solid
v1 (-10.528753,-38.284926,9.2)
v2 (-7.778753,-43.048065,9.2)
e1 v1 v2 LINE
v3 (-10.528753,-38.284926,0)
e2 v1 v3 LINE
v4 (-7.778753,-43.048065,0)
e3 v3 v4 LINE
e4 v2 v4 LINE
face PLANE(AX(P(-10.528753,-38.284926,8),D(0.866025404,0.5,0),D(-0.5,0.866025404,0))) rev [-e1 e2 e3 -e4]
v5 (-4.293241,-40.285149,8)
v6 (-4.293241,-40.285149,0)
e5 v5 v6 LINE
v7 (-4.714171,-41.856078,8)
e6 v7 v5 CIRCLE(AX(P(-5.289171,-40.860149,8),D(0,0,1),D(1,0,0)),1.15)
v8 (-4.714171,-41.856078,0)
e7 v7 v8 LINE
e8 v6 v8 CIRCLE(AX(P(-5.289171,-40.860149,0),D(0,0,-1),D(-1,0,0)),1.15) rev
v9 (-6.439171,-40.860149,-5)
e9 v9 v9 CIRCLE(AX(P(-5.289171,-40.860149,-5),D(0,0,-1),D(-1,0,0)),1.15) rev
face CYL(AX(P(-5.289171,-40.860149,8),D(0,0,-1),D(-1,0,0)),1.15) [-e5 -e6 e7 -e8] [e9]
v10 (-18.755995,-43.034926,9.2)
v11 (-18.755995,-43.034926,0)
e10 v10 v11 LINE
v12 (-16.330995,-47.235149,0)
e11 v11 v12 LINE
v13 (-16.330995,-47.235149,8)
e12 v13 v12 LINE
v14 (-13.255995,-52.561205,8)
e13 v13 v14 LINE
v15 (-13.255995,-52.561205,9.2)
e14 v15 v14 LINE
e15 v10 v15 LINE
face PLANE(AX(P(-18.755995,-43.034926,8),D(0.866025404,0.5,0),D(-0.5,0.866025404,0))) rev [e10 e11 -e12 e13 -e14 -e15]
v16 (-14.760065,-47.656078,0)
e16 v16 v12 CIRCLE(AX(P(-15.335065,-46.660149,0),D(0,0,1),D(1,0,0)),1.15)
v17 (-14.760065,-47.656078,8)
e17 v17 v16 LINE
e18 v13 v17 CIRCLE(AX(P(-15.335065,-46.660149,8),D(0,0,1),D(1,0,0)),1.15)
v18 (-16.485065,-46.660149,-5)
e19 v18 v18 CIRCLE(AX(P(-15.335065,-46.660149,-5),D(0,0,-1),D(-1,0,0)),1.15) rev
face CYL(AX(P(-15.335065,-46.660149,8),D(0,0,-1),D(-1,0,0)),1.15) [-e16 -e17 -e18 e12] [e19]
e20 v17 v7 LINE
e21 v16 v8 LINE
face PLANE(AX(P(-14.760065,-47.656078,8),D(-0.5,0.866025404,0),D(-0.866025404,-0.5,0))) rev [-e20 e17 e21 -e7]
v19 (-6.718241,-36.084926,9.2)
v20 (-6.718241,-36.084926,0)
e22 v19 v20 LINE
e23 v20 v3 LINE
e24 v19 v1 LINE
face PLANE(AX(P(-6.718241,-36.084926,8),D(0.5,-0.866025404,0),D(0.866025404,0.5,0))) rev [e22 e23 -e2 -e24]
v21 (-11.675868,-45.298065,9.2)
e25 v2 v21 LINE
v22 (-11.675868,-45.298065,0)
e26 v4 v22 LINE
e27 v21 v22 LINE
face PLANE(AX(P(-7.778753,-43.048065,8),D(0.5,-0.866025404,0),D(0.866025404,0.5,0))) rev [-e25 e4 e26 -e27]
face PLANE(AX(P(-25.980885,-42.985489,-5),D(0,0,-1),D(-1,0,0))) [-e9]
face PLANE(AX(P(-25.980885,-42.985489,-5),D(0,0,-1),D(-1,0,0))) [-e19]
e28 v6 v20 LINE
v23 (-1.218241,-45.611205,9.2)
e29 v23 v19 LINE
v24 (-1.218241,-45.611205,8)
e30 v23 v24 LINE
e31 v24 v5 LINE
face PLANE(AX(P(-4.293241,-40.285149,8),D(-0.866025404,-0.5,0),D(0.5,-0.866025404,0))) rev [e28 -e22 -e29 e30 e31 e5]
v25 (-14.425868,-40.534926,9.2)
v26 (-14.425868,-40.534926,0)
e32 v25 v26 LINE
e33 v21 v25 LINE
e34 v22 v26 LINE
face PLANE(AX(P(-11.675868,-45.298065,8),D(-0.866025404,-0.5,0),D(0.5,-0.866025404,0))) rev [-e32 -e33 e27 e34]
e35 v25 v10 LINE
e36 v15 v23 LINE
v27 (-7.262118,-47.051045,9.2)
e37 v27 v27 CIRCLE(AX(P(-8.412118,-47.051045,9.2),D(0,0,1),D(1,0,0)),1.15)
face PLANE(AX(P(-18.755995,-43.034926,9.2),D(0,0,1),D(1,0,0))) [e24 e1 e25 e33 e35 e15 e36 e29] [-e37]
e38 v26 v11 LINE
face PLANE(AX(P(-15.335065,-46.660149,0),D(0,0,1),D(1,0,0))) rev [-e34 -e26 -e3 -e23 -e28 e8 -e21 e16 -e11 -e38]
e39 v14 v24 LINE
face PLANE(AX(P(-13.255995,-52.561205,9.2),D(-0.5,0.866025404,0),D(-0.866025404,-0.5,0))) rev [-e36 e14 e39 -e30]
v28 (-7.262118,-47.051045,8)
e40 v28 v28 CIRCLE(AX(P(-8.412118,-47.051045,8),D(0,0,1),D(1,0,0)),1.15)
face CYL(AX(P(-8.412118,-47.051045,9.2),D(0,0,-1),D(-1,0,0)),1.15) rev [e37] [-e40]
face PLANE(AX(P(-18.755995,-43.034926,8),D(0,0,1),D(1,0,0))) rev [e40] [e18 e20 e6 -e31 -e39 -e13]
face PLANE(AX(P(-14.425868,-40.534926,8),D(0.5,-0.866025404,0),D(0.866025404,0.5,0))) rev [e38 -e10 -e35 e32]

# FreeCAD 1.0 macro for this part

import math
import FreeCAD as App
import Part
import Sketcher
Q = App.Units.Quantity

doc = App.newDocument("Part")
params = doc.addObject("Spreadsheet::Sheet", "Params")
for row, (alias, value) in enumerate([
    ("sketch1_radius", "1.15 mm"),
    ("sketch1_length", "5 mm"),
    ("sketch1_length2", "11.6 mm"),
    ("sketch1_length3", "4.4 mm"),
    ("sketch1_length4", "5.5 mm"),
    ("pad1_length", "8 mm"),
    ("sketch2_diameter", "2.3 mm"),
    ("sketch2_length", "5 mm"),
    ("sketch2_length2", "13.9 mm"),
    ("sketch2_length3", "4.4 mm"),
    ("sketch2_length4", "5.5 mm"),
    ("pad2_length", "1.2 mm"),
    ("sketch3_radius", "1.15 mm"),
    ("pad3_length", "5 mm"),
], start=1):
    params.set(f"A{row}", alias)
    params.set(f"B{row}", "=" + value)
    params.setAlias(f"B{row}", alias)

body = doc.addObject("PartDesign::Body", "Body")

# Sketch on XY plane
sketch1 = body.newObject("Sketcher::SketchObject", "Sketch")
sketch1.AttachmentSupport = (doc.getObject("XY_Plane"), [""])
sketch1.MapMode = "FlatFace"
sketch1.addGeometry([
    Part.LineSegment(App.Vector(-14.8, -47.7, 0), App.Vector(-4.7, -41.9, 0)),  # 0
    Part.ArcOfCircle(Part.Circle(App.Vector(-5.3, -40.9, 0), App.Vector(0, 0, 1), 1.1), math.radians(-60), math.radians(30)),  # 1
    Part.LineSegment(App.Vector(-4.3, -40.3, 0), App.Vector(-6.7, -36.1, 0)),  # 2
    Part.LineSegment(App.Vector(-6.7, -36.1, 0), App.Vector(-10.5, -38.3, 0)),  # 3
    Part.LineSegment(App.Vector(-10.5, -38.3, 0), App.Vector(-7.8, -43, 0)),  # 4
    Part.LineSegment(App.Vector(-7.8, -43, 0), App.Vector(-11.7, -45.3, 0)),  # 5
    Part.LineSegment(App.Vector(-11.7, -45.3, 0), App.Vector(-14.4, -40.5, 0)),  # 6
    Part.LineSegment(App.Vector(-14.4, -40.5, 0), App.Vector(-18.8, -43, 0)),  # 7
    Part.LineSegment(App.Vector(-18.8, -43, 0), App.Vector(-16.3, -47.2, 0)),  # 8
    Part.ArcOfCircle(Part.Circle(App.Vector(-15.3, -46.7, 0), App.Vector(0, 0, 1), 1.1), math.radians(-150), math.radians(-60)),  # 9
], False)
sketch1.addConstraint([
    Sketcher.Constraint("Tangent", 0, 2, 1, 1),
    Sketcher.Constraint("Tangent", 1, 2, 2, 1),
    Sketcher.Constraint("Coincident", 2, 2, 3, 1),
    Sketcher.Constraint("Coincident", 3, 2, 4, 1),
    Sketcher.Constraint("Coincident", 4, 2, 5, 1),
    Sketcher.Constraint("Coincident", 5, 2, 6, 1),
    Sketcher.Constraint("Coincident", 6, 2, 7, 1),
    Sketcher.Constraint("Coincident", 7, 2, 8, 1),
    Sketcher.Constraint("Tangent", 8, 2, 9, 1),
    Sketcher.Constraint("Tangent", 9, 2, 0, 1),
    Sketcher.Constraint("Equal", 1, 9),
    Sketcher.Constraint("Perpendicular", 0, 2),
    Sketcher.Constraint("Perpendicular", 2, 3),
    Sketcher.Constraint("Perpendicular", 3, 4),
    Sketcher.Constraint("Perpendicular", 4, 5),
    Sketcher.Constraint("Perpendicular", 5, 6),
    Sketcher.Constraint("Perpendicular", 6, 7),
    Sketcher.Constraint("Perpendicular", 7, 8),
    Sketcher.Constraint("Equal", 4, 6),
    Sketcher.Constraint("Angle", 0, Q("30 deg")),
    Sketcher.Constraint("Radius", 1, Q("1.15 mm")),
    Sketcher.Constraint("Distance", 7, Q("5 mm")),
    Sketcher.Constraint("Distance", 0, Q("11.6 mm")),
    Sketcher.Constraint("Distance", 3, Q("4.4 mm")),
    Sketcher.Constraint("Distance", 4, Q("5.5 mm")),
    Sketcher.Constraint("Distance", 2, Q("4.85 mm")),
    Sketcher.Constraint("DistanceX", 1, 3, -1, 1, Q("5.289171 mm")),
    Sketcher.Constraint("DistanceY", 1, 3, -1, 1, Q("40.860149 mm")),
])
sketch1.setExpression("Constraints[20]", "Params.sketch1_radius")
sketch1.setExpression("Constraints[21]", "Params.sketch1_length")
sketch1.setExpression("Constraints[22]", "Params.sketch1_length2")
sketch1.setExpression("Constraints[23]", "Params.sketch1_length3")
sketch1.setExpression("Constraints[24]", "Params.sketch1_length4")
pad1 = body.newObject("PartDesign::Pad", "Pad")
pad1.Profile = sketch1
pad1.setExpression("Length", "Params.pad1_length")

# Sketch on XY plane
sketch2 = body.newObject("Sketcher::SketchObject", "Sketch001")
sketch2.AttachmentSupport = (doc.getObject("XY_Plane"), [""])
sketch2.MapMode = "FlatFace"
sketch2.AttachmentOffset = App.Placement(App.Vector(0, 0, 8), App.Rotation())
sketch2.addGeometry([
    Part.LineSegment(App.Vector(-18.8, -43, 0), App.Vector(-16.3, -47.2, 0)),  # 0
    Part.LineSegment(App.Vector(-16.3, -47.2, 0), App.Vector(-13.3, -52.6, 0)),  # 1
    Part.LineSegment(App.Vector(-13.3, -52.6, 0), App.Vector(-1.2, -45.6, 0)),  # 2
    Part.LineSegment(App.Vector(-1.2, -45.6, 0), App.Vector(-4.3, -40.3, 0)),  # 3
    Part.LineSegment(App.Vector(-4.3, -40.3, 0), App.Vector(-6.7, -36.1, 0)),  # 4
    Part.LineSegment(App.Vector(-6.7, -36.1, 0), App.Vector(-10.5, -38.3, 0)),  # 5
    Part.LineSegment(App.Vector(-10.5, -38.3, 0), App.Vector(-7.8, -43, 0)),  # 6
    Part.LineSegment(App.Vector(-7.8, -43, 0), App.Vector(-11.7, -45.3, 0)),  # 7
    Part.LineSegment(App.Vector(-11.7, -45.3, 0), App.Vector(-14.4, -40.5, 0)),  # 8
    Part.LineSegment(App.Vector(-14.4, -40.5, 0), App.Vector(-18.8, -43, 0)),  # 9
    Part.Circle(App.Vector(-8.4, -47.1, 0), App.Vector(0, 0, 1), 1.1),  # 10
], False)
sketch2.addConstraint([
    Sketcher.Constraint("Coincident", 0, 2, 1, 1),
    Sketcher.Constraint("Coincident", 1, 2, 2, 1),
    Sketcher.Constraint("Coincident", 2, 2, 3, 1),
    Sketcher.Constraint("Coincident", 3, 2, 4, 1),
    Sketcher.Constraint("Coincident", 4, 2, 5, 1),
    Sketcher.Constraint("Coincident", 5, 2, 6, 1),
    Sketcher.Constraint("Coincident", 6, 2, 7, 1),
    Sketcher.Constraint("Coincident", 7, 2, 8, 1),
    Sketcher.Constraint("Coincident", 8, 2, 9, 1),
    Sketcher.Constraint("Coincident", 9, 2, 0, 1),
    Sketcher.Constraint("Parallel", 0, 1),
    Sketcher.Constraint("Perpendicular", 1, 2),
    Sketcher.Constraint("Perpendicular", 2, 3),
    Sketcher.Constraint("Parallel", 3, 4),
    Sketcher.Constraint("Perpendicular", 4, 5),
    Sketcher.Constraint("Perpendicular", 5, 6),
    Sketcher.Constraint("Perpendicular", 6, 7),
    Sketcher.Constraint("Perpendicular", 7, 8),
    Sketcher.Constraint("Perpendicular", 8, 9),
    Sketcher.Constraint("Equal", 1, 3),
    Sketcher.Constraint("Equal", 0, 4),
    Sketcher.Constraint("Diameter", 10, Q("2.3 mm")),
    Sketcher.Constraint("Angle", 0, Q("-60 deg")),
    Sketcher.Constraint("Distance", 9, Q("5 mm")),
    Sketcher.Constraint("Distance", 2, Q("13.9 mm")),
    Sketcher.Constraint("Distance", 5, Q("4.4 mm")),
    Sketcher.Constraint("Distance", 6, Q("5.5 mm")),
    Sketcher.Constraint("DistanceX", 4, 2, 2, 2, Q("5.5 mm")),
    Sketcher.Constraint("Distance", 0, Q("4.85 mm")),
    Sketcher.Constraint("DistanceY", 0, 2, -1, 1, Q("47.235149 mm")),
    Sketcher.Constraint("DistanceX", 2, 2, -1, 1, Q("1.218241 mm")),
    Sketcher.Constraint("DistanceY", 1, 2, 10, 3, Q("5.51016 mm")),
    Sketcher.Constraint("DistanceX", 7, 2, 10, 3, Q("3.26375 mm")),
])
sketch2.setExpression("Constraints[21]", "Params.sketch2_diameter")
sketch2.setExpression("Constraints[23]", "Params.sketch2_length")
sketch2.setExpression("Constraints[24]", "Params.sketch2_length2")
sketch2.setExpression("Constraints[25]", "Params.sketch2_length3")
sketch2.setExpression("Constraints[26]", "Params.sketch2_length4")
pad2 = body.newObject("PartDesign::Pad", "Pad001")
pad2.Profile = sketch2
pad2.setExpression("Length", "Params.pad2_length")

# Sketch on XY plane
sketch3 = body.newObject("Sketcher::SketchObject", "Sketch002")
sketch3.AttachmentSupport = (doc.getObject("XY_Plane"), [""])
sketch3.MapMode = "FlatFace"
sketch3.AttachmentOffset = App.Placement(App.Vector(0, 0, -5), App.Rotation())
sketch3.addGeometry([
    Part.ArcOfCircle(Part.Circle(App.Vector(-5.3, -40.9, 0), App.Vector(0, 0, 1), 1.1), math.radians(180), math.radians(300)),  # 0
    Part.ArcOfCircle(Part.Circle(App.Vector(-5.3, -40.9, 0), App.Vector(0, 0, 1), 1.1), math.radians(30), math.radians(180)),  # 1
    Part.ArcOfCircle(Part.Circle(App.Vector(-5.3, -40.9, 0), App.Vector(0, 0, 1), 1.1), math.radians(-60), math.radians(30)),  # 2
    Part.ArcOfCircle(Part.Circle(App.Vector(-15.3, -46.7, 0), App.Vector(0, 0, 1), 1.2), math.radians(-180), math.radians(-150)),  # 3
    Part.ArcOfCircle(Part.Circle(App.Vector(-15.3, -46.7, 0), App.Vector(0, 0, 1), 1.1), math.radians(-60), math.radians(180)),  # 4
    Part.ArcOfCircle(Part.Circle(App.Vector(-15.3, -46.7, 0), App.Vector(0, 0, 1), 1.1), math.radians(-150), math.radians(-60)),  # 5
], False)
sketch3.addConstraint([
    Sketcher.Constraint("Tangent", 0, 1, 1, 2),
    Sketcher.Constraint("Tangent", 1, 1, 2, 2),
    Sketcher.Constraint("Tangent", 2, 1, 0, 2),
    Sketcher.Constraint("Tangent", 3, 1, 4, 2),
    Sketcher.Constraint("Tangent", 4, 1, 5, 2),
    Sketcher.Constraint("Tangent", 5, 1, 3, 2),
    Sketcher.Constraint("Equal", 2, 3),
    Sketcher.Constraint("Horizontal", 2, 3, 0, 1),
    Sketcher.Constraint("Horizontal", 5, 3, 3, 1),
    Sketcher.Constraint("Radius", 0, Q("1.15 mm")),
    Sketcher.Constraint("DistanceY", 3, 3, 0, 3, Q("5.8 mm")),
    Sketcher.Constraint("DistanceY", 2, 3, 1, 1, Q("0.575 mm")),
    Sketcher.Constraint("DistanceX", 0, 3, 2, 1, Q("0.575 mm")),
    Sketcher.Constraint("DistanceX", 4, 3, 4, 1, Q("0.575 mm")),
    Sketcher.Constraint("DistanceY", 5, 1, 3, 1, Q("0.575 mm")),
    Sketcher.Constraint("DistanceX", 0, 3, -1, 1, Q("5.289171 mm")),
    Sketcher.Constraint("DistanceY", 0, 3, -1, 1, Q("40.860149 mm")),
    Sketcher.Constraint("DistanceX", 3, 3, -1, 1, Q("15.335065 mm")),
])
sketch3.setExpression("Constraints[9]", "Params.sketch3_radius")
pad3 = body.newObject("PartDesign::Pad", "Pad002")
pad3.Profile = sketch3
pad3.setExpression("Length", "Params.pad3_length")

doc.recompute()
